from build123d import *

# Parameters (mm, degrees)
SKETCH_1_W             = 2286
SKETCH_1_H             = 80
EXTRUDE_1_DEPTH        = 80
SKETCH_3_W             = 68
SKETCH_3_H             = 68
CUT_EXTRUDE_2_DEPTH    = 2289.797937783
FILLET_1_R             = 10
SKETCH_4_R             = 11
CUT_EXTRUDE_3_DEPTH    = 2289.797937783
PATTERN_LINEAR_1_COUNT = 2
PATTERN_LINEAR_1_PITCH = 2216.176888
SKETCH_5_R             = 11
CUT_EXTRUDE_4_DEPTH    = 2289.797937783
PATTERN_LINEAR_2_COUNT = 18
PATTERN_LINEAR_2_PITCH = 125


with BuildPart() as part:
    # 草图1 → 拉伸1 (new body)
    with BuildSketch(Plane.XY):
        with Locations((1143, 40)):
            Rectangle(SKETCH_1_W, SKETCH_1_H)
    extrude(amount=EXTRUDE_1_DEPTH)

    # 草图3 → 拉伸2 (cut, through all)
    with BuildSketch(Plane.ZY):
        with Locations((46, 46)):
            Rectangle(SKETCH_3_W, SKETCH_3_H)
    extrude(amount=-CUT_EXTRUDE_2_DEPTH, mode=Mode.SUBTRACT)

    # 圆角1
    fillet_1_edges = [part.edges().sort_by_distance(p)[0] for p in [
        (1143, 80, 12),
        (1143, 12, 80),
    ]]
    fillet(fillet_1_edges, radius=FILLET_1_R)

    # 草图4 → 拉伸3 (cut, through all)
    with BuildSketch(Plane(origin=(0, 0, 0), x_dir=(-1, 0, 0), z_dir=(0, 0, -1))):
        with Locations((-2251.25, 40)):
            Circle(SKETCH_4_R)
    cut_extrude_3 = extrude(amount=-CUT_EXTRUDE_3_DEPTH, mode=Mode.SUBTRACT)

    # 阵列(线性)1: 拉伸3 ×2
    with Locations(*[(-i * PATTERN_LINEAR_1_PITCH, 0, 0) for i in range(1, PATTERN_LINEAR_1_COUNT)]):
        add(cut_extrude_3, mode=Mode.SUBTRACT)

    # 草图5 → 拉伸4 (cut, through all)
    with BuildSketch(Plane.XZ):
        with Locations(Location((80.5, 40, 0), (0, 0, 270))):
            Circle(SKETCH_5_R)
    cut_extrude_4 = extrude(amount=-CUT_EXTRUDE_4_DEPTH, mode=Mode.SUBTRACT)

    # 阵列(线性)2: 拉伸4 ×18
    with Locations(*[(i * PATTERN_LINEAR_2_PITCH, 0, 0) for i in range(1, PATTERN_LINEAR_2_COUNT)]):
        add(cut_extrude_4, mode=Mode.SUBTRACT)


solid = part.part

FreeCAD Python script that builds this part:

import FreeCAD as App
import Part
import Sketcher

V = App.Vector


def edges_at(feature, points):
    """Names of the edges that pass closest to the given points."""
    edges = feature.Shape.Edges
    near = lambda p: min(range(len(edges)), key=lambda i: edges[i].distToShape(Part.Vertex(*p))[0])
    return sorted({f"Edge{near(p) + 1}" for p in points})

doc = App.newDocument("Part")
params = doc.addObject("Spreadsheet::Sheet", "Params")
for row, (alias, value) in enumerate([
    ("sketch1_width", "2286 mm"),
    ("sketch1_height", "80 mm"),
    ("pad1_length", "80 mm"),
    ("sketch2_width", "68 mm"),
    ("fillet_radius", "10 mm"),
    ("sketch3_diameter", "22 mm"),
    ("linearpattern_pitch", "2216.176888 mm"),
    ("sketch4_diameter", "22 mm"),
    ("linearpattern2_pitch", "125 mm"),
], start=1):
    params.set(f"A{row}", alias)
    params.set(f"B{row}", "=" + value)
    params.setAlias(f"B{row}", alias)

body = doc.addObject("PartDesign::Body", "Body")

# Sketch on XY plane
sketch1 = body.newObject("Sketcher::SketchObject", "Sketch")
sketch1.AttachmentSupport = (doc.getObject("XY_Plane"), [""])
sketch1.MapMode = "FlatFace"
sketch1.addGeometry([
    Part.LineSegment(V(0, 80, 0), V(0, 0, 0)),
    Part.LineSegment(V(0, 0, 0), V(2286, 0, 0)),
    Part.LineSegment(V(2286, 0, 0), V(2286, 80, 0)),
    Part.LineSegment(V(2286, 80, 0), V(0, 80, 0)),
], False)
sketch1.addConstraint([
    Sketcher.Constraint("Coincident", 0, 2, 1, 1),
    Sketcher.Constraint("Coincident", 1, 2, 2, 1),
    Sketcher.Constraint("Coincident", 2, 2, 3, 1),
    Sketcher.Constraint("Coincident", 3, 2, 0, 1),
    Sketcher.Constraint("Vertical", 0),
    Sketcher.Constraint("Horizontal", 1),
    Sketcher.Constraint("Vertical", 2),
    Sketcher.Constraint("Horizontal", 3),
    Sketcher.Constraint("Coincident", 0, 2, -1, 1),
    Sketcher.Constraint("DistanceX", 1, 1, 1, 2, 2286.0),
    Sketcher.Constraint("DistanceY", 0, 2, 0, 1, 80.0),
])
sketch1.setExpression("Constraints[9]", "Params.sketch1_width")
sketch1.setExpression("Constraints[10]", "Params.sketch1_height")
pad1 = body.newObject("PartDesign::Pad", "Pad")
pad1.Profile = sketch1
pad1.setExpression("Length", "Params.pad1_length")

# Sketch on YZ plane
sketch2 = body.newObject("Sketcher::SketchObject", "Sketch001")
sketch2.AttachmentSupport = (doc.getObject("YZ_Plane"), [""])
sketch2.MapMode = "FlatFace"
sketch2.addGeometry([
    Part.LineSegment(V(80, 12, 0), V(12, 12, 0)),
    Part.LineSegment(V(12, 12, 0), V(12, 80, 0)),
    Part.LineSegment(V(12, 80, 0), V(80, 80, 0)),
    Part.LineSegment(V(80, 80, 0), V(80, 12, 0)),
], False)
sketch2.addConstraint([
    Sketcher.Constraint("Coincident", 0, 2, 1, 1),
    Sketcher.Constraint("Coincident", 1, 2, 2, 1),
    Sketcher.Constraint("Coincident", 2, 2, 3, 1),
    Sketcher.Constraint("Coincident", 3, 2, 0, 1),
    Sketcher.Constraint("Horizontal", 0),
    Sketcher.Constraint("Vertical", 1),
    Sketcher.Constraint("Horizontal", 2),
    Sketcher.Constraint("Vertical", 3),
    Sketcher.Constraint("Equal", 2, 1),
    Sketcher.Constraint("DistanceX", 0, 2, 0, 1, 68.0),
    Sketcher.Constraint("DistanceX", -1, 1, 0, 2, 12.0),
    Sketcher.Constraint("DistanceY", -1, 1, 0, 2, 12.0),
])
sketch2.setExpression("Constraints[9]", "Params.sketch2_width")
pocket1 = body.newObject("PartDesign::Pocket", "Pocket")
pocket1.Profile = sketch2
pocket1.Type = "ThroughAll"
pocket1.Reversed = True
doc.recompute()

fillet = body.newObject("PartDesign::Fillet", "Fillet")
fillet.Base = (pocket1, edges_at(pocket1, [(1143, 80, 12), (1143, 12, 80)]))
fillet.setExpression("Radius", "Params.fillet_radius")

# Sketch on XY plane
sketch3 = body.newObject("Sketcher::SketchObject", "Sketch002")
sketch3.AttachmentSupport = (doc.getObject("XY_Plane"), [""])
sketch3.MapMode = "FlatFace"
sketch3.addGeometry(Part.Circle(V(2251, 40, 0), V(0, 0, 1), 11), False)
sketch3.addConstraint([
    Sketcher.Constraint("Diameter", 0, 22.0),
    Sketcher.Constraint("DistanceY", -1, 1, 0, 3, 40.0),
    Sketcher.Constraint("DistanceX", -1, 1, 0, 3, 2251.25),
])
sketch3.setExpression("Constraints[0]", "Params.sketch3_diameter")
pocket2 = body.newObject("PartDesign::Pocket", "Pocket001")
pocket2.Profile = sketch3
pocket2.Type = "ThroughAll"
pocket2.Reversed = True
doc.recompute()

linearpattern = body.newObject("PartDesign::LinearPattern", "LinearPattern")
linearpattern.Originals = [pocket2]
linearpattern.Direction = (doc.getObject("X_Axis"), [""])
linearpattern.Mode = "offset"
linearpattern.setExpression("Offset", "Params.linearpattern_pitch")
linearpattern.Occurrences = 2
linearpattern.Reversed = True
body.Tip = linearpattern

# Sketch on XZ plane
sketch4 = body.newObject("Sketcher::SketchObject", "Sketch003")
sketch4.AttachmentSupport = (doc.getObject("XZ_Plane"), [""])
sketch4.MapMode = "FlatFace"
sketch4.addGeometry(Part.Circle(V(80, 40, 0), V(0, 0, 1), 11), False)
sketch4.addConstraint([
    Sketcher.Constraint("Diameter", 0, 22.0),
    Sketcher.Constraint("DistanceY", -1, 1, 0, 3, 40.0),
    Sketcher.Constraint("DistanceX", -1, 1, 0, 3, 80.5),
])
sketch4.setExpression("Constraints[0]", "Params.sketch4_diameter")
pocket3 = body.newObject("PartDesign::Pocket", "Pocket002")
pocket3.Profile = sketch4
pocket3.Type = "ThroughAll"
doc.recompute()

linearpattern2 = body.newObject("PartDesign::LinearPattern", "LinearPattern001")
linearpattern2.Originals = [pocket3]
linearpattern2.Direction = (doc.getObject("X_Axis"), [""])
linearpattern2.Mode = "offset"
linearpattern2.setExpression("Offset", "Params.linearpattern2_pitch")
linearpattern2.Occurrences = 18
body.Tip = linearpattern2

doc.recompute()
